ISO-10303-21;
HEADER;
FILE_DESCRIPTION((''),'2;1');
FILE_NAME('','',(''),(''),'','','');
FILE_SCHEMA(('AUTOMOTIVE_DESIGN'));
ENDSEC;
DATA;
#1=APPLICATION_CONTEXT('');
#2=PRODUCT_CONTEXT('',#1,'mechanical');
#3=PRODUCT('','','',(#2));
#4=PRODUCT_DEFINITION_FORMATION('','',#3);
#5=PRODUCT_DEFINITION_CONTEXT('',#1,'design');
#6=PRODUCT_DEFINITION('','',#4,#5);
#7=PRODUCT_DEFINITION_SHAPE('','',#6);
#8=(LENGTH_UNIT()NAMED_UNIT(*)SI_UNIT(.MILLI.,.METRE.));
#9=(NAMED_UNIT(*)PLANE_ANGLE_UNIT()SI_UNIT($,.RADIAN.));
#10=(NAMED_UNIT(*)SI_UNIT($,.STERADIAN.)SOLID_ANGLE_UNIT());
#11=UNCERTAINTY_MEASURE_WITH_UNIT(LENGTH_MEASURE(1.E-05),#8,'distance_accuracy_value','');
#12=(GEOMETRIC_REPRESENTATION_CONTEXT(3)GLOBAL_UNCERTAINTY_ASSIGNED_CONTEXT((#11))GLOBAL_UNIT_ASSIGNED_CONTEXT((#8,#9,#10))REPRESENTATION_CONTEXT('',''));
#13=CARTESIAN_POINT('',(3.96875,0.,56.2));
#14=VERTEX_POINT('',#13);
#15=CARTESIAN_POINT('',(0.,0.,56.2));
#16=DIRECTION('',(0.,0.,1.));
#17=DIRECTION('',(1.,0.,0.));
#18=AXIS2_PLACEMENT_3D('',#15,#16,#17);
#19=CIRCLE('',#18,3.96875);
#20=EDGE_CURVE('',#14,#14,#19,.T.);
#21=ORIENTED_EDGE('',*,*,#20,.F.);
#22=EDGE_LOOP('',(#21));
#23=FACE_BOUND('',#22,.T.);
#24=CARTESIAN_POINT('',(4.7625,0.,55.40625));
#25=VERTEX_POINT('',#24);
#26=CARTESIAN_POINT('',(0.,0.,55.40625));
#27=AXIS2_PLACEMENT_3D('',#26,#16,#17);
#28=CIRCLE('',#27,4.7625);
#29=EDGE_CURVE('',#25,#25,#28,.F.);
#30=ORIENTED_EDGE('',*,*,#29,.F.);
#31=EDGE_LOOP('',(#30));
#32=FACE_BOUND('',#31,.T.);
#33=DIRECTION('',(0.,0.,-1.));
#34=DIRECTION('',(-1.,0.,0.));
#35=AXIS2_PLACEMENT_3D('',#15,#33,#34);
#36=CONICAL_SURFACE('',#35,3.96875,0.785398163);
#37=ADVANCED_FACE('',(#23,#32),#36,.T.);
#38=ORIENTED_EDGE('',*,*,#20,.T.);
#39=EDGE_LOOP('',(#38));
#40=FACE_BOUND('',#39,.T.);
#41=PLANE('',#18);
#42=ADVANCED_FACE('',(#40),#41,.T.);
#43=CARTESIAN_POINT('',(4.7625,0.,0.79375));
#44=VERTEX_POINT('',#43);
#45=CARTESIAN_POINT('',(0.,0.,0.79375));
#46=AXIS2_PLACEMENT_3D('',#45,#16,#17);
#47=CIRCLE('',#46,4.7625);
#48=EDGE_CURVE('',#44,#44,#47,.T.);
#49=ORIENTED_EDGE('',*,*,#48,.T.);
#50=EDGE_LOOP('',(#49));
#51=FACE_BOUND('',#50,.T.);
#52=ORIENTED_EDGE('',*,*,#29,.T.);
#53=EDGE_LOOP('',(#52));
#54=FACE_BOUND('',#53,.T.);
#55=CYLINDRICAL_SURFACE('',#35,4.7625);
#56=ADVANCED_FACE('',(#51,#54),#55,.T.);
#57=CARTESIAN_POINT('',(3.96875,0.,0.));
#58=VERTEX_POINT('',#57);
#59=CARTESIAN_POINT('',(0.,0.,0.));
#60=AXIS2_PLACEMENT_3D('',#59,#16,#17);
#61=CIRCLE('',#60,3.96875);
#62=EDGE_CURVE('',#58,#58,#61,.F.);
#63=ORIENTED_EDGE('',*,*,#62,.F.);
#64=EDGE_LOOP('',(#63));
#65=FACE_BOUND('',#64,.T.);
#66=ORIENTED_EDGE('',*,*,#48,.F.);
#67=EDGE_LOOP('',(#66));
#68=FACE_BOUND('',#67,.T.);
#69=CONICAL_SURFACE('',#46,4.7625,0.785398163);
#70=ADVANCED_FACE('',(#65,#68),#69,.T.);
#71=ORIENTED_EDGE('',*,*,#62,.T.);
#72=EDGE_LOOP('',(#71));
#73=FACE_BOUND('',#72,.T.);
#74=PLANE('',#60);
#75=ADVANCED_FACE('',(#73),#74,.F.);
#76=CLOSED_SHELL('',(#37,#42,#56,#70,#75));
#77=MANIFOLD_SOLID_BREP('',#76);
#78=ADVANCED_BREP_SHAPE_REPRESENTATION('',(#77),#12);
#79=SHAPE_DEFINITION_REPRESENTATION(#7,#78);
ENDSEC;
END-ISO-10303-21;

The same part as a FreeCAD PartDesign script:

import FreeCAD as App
import Part
import Sketcher
from FreeCAD import Vector
Q = App.Units.Quantity


def edges_at(feature, points):
    """Names of the edges that pass closest to the given points."""
    edges = feature.Shape.Edges
    near = lambda p: min(range(len(edges)), key=lambda i: edges[i].distToShape(Part.Vertex(*p))[0])
    return sorted({f"Edge{near(p) + 1}" for p in points})

doc = App.newDocument("Part")
params = doc.addObject("Spreadsheet::Sheet", "Params")
for row, (alias, value) in enumerate([
    ("sketch1_diameter", "0.375 in"),
    ("pad1_length", "56.2 mm"),
    ("chamfer_size", "0.03125 in"),
], start=1):
    params.set(f"A{row}", alias)
    params.set(f"B{row}", "=" + value)
    params.setAlias(f"B{row}", alias)

body = doc.addObject("PartDesign::Body", "Body")

# Sketch on XY plane
sketch1 = body.newObject("Sketcher::SketchObject", "Sketch")
sketch1.AttachmentSupport = (doc.getObject("XY_Plane"), [""])
sketch1.MapMode = "FlatFace"
sketch1.addGeometry(Part.Circle(Vector(0, 0, 0), Vector(0, 0, 1), 4.8), False)
sketch1.addConstraint([
    Sketcher.Constraint("Coincident", 0, 3, -1, 1),
    Sketcher.Constraint("Diameter", 0, Q("0.375 in")),
])
sketch1.setExpression("Constraints[1]", "Params.sketch1_diameter")
pad1 = body.newObject("PartDesign::Pad", "Pad")
pad1.Profile = sketch1
pad1.setExpression("Length", "Params.pad1_length")
doc.recompute()

chamfer = body.newObject("PartDesign::Chamfer", "Chamfer")
chamfer.Base = (pad1, edges_at(pad1, [(-4.763, 0, 0), (-4.763, 0, 56.2)]))
chamfer.setExpression("Size", "Params.chamfer_size")

doc.recompute()
